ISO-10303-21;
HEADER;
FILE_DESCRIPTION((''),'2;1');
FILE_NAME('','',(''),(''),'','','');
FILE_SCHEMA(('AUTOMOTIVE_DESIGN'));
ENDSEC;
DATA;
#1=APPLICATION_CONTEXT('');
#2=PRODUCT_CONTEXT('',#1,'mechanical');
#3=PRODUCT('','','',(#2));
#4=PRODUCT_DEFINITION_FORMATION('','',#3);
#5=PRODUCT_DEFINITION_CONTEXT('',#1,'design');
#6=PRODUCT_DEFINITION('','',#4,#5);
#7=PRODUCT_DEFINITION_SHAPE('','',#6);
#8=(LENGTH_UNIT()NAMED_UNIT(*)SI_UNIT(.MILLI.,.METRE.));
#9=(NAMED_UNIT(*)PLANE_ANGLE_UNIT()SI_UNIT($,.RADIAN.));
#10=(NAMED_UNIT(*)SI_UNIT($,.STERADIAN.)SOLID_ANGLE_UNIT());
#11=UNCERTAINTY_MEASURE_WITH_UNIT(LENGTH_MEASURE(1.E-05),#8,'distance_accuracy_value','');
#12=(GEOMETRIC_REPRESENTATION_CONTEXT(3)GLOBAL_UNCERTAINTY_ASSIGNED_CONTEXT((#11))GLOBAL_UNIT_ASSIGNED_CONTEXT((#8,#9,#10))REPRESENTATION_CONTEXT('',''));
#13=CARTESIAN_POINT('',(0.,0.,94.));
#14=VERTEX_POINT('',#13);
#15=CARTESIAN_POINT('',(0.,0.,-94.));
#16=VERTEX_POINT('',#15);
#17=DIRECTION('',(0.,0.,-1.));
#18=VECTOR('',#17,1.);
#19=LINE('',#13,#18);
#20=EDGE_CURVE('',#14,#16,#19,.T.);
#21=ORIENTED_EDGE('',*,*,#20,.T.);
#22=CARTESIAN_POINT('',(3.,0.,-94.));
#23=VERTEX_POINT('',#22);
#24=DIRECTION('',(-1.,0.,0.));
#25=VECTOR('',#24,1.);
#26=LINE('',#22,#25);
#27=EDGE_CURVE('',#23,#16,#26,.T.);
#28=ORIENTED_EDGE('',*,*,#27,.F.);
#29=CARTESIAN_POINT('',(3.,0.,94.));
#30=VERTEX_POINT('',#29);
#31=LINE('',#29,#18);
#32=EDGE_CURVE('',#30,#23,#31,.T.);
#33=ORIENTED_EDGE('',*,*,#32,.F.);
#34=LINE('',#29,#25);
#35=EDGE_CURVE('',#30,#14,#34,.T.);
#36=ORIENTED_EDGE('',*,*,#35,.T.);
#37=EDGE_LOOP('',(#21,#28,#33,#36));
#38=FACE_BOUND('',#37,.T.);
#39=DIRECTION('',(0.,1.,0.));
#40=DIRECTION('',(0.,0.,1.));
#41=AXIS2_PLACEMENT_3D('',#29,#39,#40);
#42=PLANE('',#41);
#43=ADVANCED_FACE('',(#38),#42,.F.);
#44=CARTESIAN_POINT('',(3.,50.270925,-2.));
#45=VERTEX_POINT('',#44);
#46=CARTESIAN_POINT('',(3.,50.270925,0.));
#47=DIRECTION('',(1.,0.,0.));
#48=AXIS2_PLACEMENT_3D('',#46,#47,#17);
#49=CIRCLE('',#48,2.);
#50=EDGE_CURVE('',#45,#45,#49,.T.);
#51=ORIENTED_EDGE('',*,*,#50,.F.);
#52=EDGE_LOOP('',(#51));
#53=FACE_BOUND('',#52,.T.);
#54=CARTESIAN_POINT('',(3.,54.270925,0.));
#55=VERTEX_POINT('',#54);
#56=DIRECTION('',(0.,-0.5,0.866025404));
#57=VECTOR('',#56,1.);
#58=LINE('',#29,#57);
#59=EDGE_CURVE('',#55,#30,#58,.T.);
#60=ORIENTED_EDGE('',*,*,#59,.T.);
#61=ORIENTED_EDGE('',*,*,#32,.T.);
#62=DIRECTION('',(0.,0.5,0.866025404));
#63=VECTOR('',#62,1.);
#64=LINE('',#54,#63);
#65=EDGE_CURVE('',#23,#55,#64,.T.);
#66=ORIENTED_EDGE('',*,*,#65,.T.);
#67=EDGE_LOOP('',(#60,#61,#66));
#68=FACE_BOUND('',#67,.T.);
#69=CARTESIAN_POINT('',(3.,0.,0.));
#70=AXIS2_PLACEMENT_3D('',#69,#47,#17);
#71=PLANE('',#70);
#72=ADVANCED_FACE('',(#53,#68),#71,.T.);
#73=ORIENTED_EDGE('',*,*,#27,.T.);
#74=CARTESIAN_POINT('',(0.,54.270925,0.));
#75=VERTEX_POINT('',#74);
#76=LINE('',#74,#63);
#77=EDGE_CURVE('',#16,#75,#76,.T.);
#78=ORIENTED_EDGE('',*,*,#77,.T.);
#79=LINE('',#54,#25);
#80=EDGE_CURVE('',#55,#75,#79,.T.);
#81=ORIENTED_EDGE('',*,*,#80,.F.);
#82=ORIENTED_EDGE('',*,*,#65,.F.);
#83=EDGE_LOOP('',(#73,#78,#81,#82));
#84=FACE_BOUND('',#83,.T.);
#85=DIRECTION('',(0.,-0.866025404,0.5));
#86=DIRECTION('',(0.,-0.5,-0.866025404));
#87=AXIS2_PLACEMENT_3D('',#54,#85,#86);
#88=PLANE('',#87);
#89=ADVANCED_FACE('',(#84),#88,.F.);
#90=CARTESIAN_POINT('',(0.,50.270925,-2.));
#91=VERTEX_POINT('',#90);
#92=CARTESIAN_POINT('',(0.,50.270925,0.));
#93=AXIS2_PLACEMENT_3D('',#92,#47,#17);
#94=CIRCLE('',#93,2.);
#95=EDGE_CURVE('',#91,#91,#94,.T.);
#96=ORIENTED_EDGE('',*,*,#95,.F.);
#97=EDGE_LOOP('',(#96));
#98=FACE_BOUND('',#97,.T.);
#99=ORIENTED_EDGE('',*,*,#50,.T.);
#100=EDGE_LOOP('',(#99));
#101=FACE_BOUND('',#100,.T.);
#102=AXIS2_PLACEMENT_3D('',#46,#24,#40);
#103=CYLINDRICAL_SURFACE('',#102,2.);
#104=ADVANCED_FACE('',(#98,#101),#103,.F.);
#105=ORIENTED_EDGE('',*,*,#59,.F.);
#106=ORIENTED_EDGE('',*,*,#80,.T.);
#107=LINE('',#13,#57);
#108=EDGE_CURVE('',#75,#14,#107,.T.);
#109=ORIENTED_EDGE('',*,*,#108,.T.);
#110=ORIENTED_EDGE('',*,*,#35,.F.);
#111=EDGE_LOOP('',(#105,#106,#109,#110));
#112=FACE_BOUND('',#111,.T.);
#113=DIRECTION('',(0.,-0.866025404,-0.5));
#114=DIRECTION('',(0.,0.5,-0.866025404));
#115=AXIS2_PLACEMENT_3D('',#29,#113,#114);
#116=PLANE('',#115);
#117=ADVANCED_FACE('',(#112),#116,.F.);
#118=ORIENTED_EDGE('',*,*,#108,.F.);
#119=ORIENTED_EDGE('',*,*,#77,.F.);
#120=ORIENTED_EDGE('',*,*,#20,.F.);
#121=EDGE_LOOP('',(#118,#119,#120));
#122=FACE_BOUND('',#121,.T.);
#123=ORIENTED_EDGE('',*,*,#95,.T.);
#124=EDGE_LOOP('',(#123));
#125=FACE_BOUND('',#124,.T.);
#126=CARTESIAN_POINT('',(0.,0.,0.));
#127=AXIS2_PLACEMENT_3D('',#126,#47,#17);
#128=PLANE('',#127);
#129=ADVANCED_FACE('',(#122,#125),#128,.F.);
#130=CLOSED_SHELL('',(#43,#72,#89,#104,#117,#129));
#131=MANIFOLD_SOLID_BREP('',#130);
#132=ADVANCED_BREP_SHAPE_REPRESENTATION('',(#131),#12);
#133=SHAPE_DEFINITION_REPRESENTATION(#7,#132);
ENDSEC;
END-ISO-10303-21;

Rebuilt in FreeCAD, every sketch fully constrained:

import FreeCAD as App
import Part
import Sketcher
Q = App.Units.Quantity


def add_polygon(sketch, points):
    """Adds a closed chain of lines whose ends are joined by coincident constraints."""
    first, n = sketch.GeometryCount, len(points)
    for a, b in zip(points, points[1:] + points[:1]):
        sketch.addGeometry(Part.LineSegment(App.Vector(*a, 0), App.Vector(*b, 0)), False)
    for i in range(n):
        sketch.addConstraint(Sketcher.Constraint("Coincident", first + i, 2, first + (i + 1) % n, 1))

doc = App.newDocument("Part")
body = doc.addObject("PartDesign::Body", "Body")

sketch1 = doc.addObject("Sketcher::SketchObject", "Sketch")
body.addObject(sketch1)
sketch1.AttachmentSupport = (doc.YZ_Plane, [""])
sketch1.MapMode = "FlatFace"
add_polygon(sketch1, [(0, 94), (0, -94), (54.3, 0)])
sketch1.addGeometry(Part.Circle(App.Vector(50.3, 0, 0), App.Vector(0, 0, 1), 2), False)
sketch1.addConstraint([
    Sketcher.Constraint("Vertical", 0),
    Sketcher.Constraint("Symmetric", 0, 2, 2, 2, -1, 1),
    Sketcher.Constraint("PointOnObject", 3, 3, -1),
    Sketcher.Constraint("PointOnObject", 1, 2, -1),
    Sketcher.Constraint("Diameter", 3, 4.0),
    Sketcher.Constraint("DistanceY", 0, 2, 0, 1, 188.0),
    Sketcher.Constraint("Angle", 1, Q("60 deg")),
    Sketcher.Constraint("DistanceX", 3, 3, 1, 2, 4.0),
])
pad1 = doc.addObject("PartDesign::Pad", "Pad")
body.addObject(pad1)
pad1.Profile = sketch1
pad1.Length = 3

doc.recompute()
